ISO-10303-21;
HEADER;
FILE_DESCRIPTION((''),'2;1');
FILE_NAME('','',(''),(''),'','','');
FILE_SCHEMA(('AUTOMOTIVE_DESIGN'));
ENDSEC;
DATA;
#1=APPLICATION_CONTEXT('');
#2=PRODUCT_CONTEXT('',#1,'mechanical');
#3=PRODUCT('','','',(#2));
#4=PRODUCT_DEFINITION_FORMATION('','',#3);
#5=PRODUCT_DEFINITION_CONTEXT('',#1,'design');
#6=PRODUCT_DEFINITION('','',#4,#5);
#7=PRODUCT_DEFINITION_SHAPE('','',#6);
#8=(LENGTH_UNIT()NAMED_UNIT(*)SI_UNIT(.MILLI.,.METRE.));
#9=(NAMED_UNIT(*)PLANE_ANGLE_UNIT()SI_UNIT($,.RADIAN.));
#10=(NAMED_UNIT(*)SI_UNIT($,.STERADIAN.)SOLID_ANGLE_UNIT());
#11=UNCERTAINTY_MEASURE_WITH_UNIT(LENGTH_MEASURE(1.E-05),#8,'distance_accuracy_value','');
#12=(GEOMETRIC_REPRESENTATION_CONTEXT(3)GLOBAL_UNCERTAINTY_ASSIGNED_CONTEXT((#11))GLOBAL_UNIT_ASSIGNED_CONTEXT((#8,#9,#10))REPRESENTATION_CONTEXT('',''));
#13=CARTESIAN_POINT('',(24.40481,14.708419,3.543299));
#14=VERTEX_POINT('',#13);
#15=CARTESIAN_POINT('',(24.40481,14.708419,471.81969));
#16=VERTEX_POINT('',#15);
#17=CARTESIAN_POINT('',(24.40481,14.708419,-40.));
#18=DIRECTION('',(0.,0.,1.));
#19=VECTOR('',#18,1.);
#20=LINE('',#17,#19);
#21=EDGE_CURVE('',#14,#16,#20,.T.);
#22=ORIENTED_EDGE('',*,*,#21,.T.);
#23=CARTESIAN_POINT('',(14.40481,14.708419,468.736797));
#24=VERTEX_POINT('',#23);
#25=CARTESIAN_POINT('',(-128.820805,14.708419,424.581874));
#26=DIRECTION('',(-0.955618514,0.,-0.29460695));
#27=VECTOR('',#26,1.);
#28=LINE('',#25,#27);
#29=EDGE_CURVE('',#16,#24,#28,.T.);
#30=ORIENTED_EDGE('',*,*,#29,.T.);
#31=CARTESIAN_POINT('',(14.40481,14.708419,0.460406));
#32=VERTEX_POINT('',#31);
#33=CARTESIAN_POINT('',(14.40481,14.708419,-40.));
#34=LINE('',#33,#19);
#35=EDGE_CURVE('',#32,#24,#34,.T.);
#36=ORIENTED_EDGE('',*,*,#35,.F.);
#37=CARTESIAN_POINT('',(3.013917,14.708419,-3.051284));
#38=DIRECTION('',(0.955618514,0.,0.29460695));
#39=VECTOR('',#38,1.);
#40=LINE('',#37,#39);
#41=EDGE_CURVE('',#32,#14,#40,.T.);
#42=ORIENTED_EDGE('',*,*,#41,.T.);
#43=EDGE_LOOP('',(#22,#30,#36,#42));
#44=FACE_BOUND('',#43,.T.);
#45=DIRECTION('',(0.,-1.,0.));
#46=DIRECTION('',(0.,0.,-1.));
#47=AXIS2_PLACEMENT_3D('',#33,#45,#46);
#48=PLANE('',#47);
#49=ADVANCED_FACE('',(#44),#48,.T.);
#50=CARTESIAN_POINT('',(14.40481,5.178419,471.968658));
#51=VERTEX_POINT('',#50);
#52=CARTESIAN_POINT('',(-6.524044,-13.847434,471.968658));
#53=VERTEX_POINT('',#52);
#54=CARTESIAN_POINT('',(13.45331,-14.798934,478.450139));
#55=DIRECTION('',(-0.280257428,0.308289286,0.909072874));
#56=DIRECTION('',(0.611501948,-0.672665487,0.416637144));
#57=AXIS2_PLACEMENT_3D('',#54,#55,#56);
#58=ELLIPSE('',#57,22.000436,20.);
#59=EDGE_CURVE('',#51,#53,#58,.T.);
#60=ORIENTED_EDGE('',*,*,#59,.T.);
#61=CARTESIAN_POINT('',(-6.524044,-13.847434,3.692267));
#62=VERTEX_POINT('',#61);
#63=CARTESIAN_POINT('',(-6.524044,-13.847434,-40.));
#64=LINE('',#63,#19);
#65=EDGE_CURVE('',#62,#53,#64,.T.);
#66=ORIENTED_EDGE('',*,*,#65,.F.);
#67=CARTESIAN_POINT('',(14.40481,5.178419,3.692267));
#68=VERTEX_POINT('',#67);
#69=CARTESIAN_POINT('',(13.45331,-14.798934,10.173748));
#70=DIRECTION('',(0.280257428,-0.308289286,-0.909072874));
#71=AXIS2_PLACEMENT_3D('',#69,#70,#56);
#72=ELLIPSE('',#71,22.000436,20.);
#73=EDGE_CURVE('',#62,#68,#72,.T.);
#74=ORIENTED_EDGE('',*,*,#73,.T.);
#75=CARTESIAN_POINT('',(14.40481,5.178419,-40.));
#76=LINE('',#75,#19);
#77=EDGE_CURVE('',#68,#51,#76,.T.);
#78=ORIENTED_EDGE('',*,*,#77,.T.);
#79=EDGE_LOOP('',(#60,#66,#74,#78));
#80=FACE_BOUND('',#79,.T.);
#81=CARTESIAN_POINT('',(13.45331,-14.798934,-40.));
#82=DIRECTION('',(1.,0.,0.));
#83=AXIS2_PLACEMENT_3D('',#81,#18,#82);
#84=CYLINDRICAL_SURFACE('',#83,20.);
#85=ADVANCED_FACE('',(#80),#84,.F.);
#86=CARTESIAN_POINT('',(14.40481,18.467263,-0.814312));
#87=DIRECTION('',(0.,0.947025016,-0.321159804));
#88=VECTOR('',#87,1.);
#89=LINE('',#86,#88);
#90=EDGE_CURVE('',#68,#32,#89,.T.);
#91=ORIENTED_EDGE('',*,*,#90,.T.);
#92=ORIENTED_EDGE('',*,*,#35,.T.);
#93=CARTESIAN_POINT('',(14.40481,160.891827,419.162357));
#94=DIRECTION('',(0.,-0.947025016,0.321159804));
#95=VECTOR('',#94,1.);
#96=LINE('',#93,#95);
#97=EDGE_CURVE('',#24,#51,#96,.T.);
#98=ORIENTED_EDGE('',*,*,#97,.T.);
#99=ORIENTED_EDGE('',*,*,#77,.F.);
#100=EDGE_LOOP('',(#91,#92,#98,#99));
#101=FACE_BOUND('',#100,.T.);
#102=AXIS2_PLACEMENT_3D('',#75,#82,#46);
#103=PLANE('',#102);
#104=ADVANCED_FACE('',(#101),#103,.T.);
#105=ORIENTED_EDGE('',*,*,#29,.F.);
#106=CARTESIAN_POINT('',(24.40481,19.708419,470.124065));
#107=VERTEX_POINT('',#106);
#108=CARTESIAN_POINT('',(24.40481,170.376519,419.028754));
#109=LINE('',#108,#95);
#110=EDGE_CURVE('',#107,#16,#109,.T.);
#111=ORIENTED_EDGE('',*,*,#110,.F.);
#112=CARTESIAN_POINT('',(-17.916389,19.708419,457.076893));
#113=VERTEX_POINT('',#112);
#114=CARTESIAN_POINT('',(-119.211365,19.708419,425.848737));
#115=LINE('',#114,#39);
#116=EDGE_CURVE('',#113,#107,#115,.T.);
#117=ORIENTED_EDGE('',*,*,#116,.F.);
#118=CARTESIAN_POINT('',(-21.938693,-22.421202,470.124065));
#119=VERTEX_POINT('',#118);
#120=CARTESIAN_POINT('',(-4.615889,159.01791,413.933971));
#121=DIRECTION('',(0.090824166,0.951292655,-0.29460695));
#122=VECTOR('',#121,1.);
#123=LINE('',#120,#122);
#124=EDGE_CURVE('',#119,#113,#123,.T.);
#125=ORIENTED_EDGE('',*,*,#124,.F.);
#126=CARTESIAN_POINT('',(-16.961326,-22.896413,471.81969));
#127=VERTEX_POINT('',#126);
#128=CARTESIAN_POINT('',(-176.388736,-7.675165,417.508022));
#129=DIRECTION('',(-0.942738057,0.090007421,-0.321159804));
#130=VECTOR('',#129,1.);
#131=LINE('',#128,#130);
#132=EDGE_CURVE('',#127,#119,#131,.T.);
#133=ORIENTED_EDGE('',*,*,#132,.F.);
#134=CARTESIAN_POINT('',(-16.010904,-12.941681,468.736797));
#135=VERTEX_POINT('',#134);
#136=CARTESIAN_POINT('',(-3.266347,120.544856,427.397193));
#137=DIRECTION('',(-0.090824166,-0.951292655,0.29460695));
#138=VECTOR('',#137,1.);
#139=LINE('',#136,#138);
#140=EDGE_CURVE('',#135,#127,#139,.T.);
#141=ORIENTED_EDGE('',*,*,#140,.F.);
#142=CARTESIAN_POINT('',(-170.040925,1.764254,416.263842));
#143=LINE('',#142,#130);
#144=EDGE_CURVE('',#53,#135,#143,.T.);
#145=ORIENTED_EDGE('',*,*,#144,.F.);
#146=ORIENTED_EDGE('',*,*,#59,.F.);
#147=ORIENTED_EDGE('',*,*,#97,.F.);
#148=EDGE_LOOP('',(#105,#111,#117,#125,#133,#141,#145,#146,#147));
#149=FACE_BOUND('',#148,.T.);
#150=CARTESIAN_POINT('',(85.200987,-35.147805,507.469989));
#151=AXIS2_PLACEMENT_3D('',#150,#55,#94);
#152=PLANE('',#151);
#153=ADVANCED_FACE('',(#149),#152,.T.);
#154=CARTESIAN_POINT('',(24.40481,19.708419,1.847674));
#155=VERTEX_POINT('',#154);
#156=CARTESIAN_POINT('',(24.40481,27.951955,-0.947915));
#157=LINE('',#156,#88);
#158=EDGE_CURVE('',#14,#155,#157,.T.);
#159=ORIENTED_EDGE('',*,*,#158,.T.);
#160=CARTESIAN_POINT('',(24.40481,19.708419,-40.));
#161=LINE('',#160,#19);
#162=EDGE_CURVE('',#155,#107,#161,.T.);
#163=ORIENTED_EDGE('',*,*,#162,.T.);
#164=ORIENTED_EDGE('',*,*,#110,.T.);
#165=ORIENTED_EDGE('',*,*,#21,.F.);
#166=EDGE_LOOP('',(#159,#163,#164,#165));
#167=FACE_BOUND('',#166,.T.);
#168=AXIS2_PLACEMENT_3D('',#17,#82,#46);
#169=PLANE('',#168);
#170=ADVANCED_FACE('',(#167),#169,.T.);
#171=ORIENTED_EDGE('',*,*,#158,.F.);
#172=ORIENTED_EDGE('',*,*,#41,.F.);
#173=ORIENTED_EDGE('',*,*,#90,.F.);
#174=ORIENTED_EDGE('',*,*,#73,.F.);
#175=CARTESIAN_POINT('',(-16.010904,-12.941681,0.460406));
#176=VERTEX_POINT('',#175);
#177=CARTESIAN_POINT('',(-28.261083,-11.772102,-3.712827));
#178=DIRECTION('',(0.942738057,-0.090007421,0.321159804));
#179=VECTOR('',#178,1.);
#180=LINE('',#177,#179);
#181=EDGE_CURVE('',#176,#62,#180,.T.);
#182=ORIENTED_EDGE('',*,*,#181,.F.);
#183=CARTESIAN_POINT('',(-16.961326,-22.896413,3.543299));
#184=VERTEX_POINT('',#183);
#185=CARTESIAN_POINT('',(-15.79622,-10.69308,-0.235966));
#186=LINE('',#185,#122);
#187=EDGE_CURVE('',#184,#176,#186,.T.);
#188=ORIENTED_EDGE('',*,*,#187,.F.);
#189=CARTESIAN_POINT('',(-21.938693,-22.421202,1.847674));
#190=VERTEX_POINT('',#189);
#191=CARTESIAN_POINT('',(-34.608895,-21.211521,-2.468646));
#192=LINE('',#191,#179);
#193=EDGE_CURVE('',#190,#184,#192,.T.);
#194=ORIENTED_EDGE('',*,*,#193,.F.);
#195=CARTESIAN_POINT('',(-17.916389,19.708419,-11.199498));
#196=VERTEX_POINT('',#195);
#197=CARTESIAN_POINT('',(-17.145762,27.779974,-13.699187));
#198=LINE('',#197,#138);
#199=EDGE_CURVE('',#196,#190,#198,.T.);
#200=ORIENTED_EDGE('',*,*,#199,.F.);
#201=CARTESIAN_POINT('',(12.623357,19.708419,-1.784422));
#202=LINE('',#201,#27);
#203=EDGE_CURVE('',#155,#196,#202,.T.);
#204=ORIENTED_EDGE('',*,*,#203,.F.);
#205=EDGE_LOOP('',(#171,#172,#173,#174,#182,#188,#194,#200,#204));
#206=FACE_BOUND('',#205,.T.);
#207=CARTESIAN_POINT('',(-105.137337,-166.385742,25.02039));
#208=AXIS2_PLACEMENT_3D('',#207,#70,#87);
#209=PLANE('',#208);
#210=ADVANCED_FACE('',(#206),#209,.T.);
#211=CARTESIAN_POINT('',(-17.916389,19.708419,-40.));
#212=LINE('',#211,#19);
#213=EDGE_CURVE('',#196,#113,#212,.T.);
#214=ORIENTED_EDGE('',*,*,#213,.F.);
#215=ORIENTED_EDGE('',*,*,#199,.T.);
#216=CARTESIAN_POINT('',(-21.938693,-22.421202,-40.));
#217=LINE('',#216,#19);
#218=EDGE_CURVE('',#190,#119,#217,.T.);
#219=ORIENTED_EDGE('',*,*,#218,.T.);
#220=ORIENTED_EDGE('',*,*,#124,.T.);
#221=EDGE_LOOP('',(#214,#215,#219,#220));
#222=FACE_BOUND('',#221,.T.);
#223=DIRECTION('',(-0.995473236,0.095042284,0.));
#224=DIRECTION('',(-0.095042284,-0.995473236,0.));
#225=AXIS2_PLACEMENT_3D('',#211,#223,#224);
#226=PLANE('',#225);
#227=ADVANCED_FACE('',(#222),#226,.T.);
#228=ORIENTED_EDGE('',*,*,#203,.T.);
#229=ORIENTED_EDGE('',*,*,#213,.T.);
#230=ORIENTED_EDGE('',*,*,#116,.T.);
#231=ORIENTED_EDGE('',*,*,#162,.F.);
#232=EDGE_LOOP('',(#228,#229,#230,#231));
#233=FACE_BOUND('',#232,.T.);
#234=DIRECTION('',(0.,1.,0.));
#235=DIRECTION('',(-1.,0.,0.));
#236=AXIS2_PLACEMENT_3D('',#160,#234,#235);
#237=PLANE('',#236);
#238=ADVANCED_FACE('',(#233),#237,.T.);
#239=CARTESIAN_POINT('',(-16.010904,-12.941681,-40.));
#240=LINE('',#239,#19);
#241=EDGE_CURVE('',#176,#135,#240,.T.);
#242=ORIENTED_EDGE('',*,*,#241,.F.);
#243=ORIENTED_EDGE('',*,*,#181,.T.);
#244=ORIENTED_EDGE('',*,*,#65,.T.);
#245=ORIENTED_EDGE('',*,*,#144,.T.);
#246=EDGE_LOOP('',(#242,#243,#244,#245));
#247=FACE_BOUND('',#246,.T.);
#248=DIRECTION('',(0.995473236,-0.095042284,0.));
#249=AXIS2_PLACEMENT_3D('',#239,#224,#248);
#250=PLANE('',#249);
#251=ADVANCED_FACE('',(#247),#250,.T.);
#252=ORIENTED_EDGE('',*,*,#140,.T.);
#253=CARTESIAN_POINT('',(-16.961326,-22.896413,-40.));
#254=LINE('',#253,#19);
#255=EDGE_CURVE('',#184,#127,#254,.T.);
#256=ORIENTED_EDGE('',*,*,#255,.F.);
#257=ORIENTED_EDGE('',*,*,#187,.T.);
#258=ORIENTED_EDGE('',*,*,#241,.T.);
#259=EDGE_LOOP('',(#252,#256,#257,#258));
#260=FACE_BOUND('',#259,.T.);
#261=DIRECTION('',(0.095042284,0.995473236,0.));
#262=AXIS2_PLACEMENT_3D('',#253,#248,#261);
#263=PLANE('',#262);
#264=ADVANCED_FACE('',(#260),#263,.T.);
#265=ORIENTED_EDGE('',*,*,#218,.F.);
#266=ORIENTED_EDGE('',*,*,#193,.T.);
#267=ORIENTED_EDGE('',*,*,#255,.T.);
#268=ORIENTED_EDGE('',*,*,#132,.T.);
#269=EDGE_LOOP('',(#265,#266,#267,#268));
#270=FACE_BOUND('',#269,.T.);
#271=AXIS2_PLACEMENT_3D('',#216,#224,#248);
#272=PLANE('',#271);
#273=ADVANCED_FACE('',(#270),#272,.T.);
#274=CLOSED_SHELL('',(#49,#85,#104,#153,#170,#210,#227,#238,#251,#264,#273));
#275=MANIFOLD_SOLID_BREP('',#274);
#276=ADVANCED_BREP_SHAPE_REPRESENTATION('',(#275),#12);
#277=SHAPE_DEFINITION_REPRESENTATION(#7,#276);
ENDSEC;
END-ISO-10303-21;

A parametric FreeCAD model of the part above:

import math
import FreeCAD as App
import Part
import Sketcher

doc = App.newDocument("Part")
body = doc.addObject("PartDesign::Body", "Body")

sketch1 = body.newObject("Sketcher::SketchObject", "Sketch")
sketch1.AttachmentSupport = (doc.getObject("XY_Plane"), [""])
sketch1.MapMode = "FlatFace"
sketch1.addGeometry([
    Part.LineSegment(App.Vector(14, 5, 0), App.Vector(14, 15, 0)),
    Part.LineSegment(App.Vector(14, 15, 0), App.Vector(24, 15, 0)),
    Part.LineSegment(App.Vector(24, 15, 0), App.Vector(24, 20, 0)),
    Part.LineSegment(App.Vector(24, 20, 0), App.Vector(-18, 20, 0)),
    Part.LineSegment(App.Vector(-18, 20, 0), App.Vector(-22, -22, 0)),
    Part.LineSegment(App.Vector(-22, -22, 0), App.Vector(-17, -23, 0)),
    Part.LineSegment(App.Vector(-17, -23, 0), App.Vector(-16, -13, 0)),
    Part.LineSegment(App.Vector(-16, -13, 0), App.Vector(-7, -14, 0)),
    Part.ArcOfCircle(Part.Circle(App.Vector(13, -15, 0), App.Vector(0, 0, 1), 20), math.radians(87), math.radians(177)),
], False)
sketch1.addConstraint([
    Sketcher.Constraint("Coincident", 0, 2, 1, 1),
    Sketcher.Constraint("Coincident", 1, 2, 2, 1),
    Sketcher.Constraint("Coincident", 2, 2, 3, 1),
    Sketcher.Constraint("Coincident", 3, 2, 4, 1),
    Sketcher.Constraint("Coincident", 4, 2, 5, 1),
    Sketcher.Constraint("Coincident", 5, 2, 6, 1),
    Sketcher.Constraint("Coincident", 6, 2, 7, 1),
    Sketcher.Constraint("Coincident", 7, 2, 8, 2),
    Sketcher.Constraint("Coincident", 8, 1, 0, 1),
    Sketcher.Constraint("Vertical", 0),
    Sketcher.Constraint("Horizontal", 1),
    Sketcher.Constraint("Vertical", 2),
    Sketcher.Constraint("Horizontal", 3),
    Sketcher.Constraint("Perpendicular", 4, 5),
    Sketcher.Constraint("Perpendicular", 5, 6),
    Sketcher.Constraint("Perpendicular", 6, 7),
    Sketcher.Constraint("Radius", 8, 20.0),
    Sketcher.Constraint("DistanceX", 1, 1, 1, 2, 10.0),
    Sketcher.Constraint("DistanceY", 2, 1, 2, 2, 5.0),
    Sketcher.Constraint("Distance", 5, 5.0),
    Sketcher.Constraint("Distance", 6, 10.0),
    Sketcher.Constraint("DistanceY", 0, 1, 0, 2, 9.53),
    Sketcher.Constraint("Distance", 7, 9.53),
    Sketcher.Constraint("DistanceX", 3, 2, 3, 1, 42.321199),
    Sketcher.Constraint("Distance", 4, 42.321199),
    Sketcher.Constraint("DistanceX", 8, 3, 0, 2, 0.9515),
    Sketcher.Constraint("DistanceX", -1, 1, 8, 3, 13.45331),
    Sketcher.Constraint("DistanceY", -1, 1, 0, 2, 14.708419),
])
pad1 = body.newObject("PartDesign::Pad", "Pad")
pad1.Profile = sketch1
pad1.Type = "TwoLengths"
pad1.Length = 514
pad1.Length2 = 40

sketch2 = body.newObject("Sketcher::SketchObject", "Sketch001")
sketch2.Placement = App.Placement(App.Vector(-738.201874, 812.038169, 3415.5611), App.Rotation(App.Vector(-0.955618514, 0, -0.29460695), App.Vector(-0.280257428, 0.308289286, 0.909072873), App.Vector(0.090824166, 0.951292655, -0.29460695), "ZXY"))
sketch2.addGeometry([
    Part.LineSegment(App.Vector(70, -3136, 0), App.Vector(247, -3136, 0)),
    Part.LineSegment(App.Vector(247, -3136, 0), App.Vector(168, -3034, 0)),
    Part.LineSegment(App.Vector(168, -3034, 0), App.Vector(70, -3136, 0)),
    Part.LineSegment(App.Vector(236, -3561, 0), App.Vector(314, -3654, 0)),
    Part.LineSegment(App.Vector(314, -3654, 0), App.Vector(394, -3561, 0)),
    Part.LineSegment(App.Vector(394, -3561, 0), App.Vector(236, -3561, 0)),
], False)
sketch2.addConstraint([
    Sketcher.Constraint("Coincident", 0, 2, 1, 1),
    Sketcher.Constraint("Coincident", 1, 2, 2, 1),
    Sketcher.Constraint("Coincident", 2, 2, 0, 1),
    Sketcher.Constraint("Coincident", 3, 2, 4, 1),
    Sketcher.Constraint("Coincident", 4, 2, 5, 1),
    Sketcher.Constraint("Coincident", 5, 2, 3, 1),
    Sketcher.Constraint("Horizontal", 0),
    Sketcher.Constraint("Horizontal", 5),
    Sketcher.Constraint("Distance", 3, 121.144699),
    Sketcher.Constraint("DistanceX", 0, 1, 0, 2, 176.939291),
    Sketcher.Constraint("DistanceX", 5, 2, 5, 1, 157.64647),
    Sketcher.Constraint("DistanceX", -1, 1, 3, 2, 313.780261),
    Sketcher.Constraint("DistanceY", 3, 2, -1, 1, 3654.40389),
    Sketcher.Constraint("DistanceY", 4, 2, -1, 1, 3561.307232),
    Sketcher.Constraint("DistanceX", 1, 2, 0, 2, 79.21877),
    Sketcher.Constraint("DistanceY", 3, 2, 0, 2, 518.794022),
    Sketcher.Constraint("DistanceX", 0, 2, 4, 2, 147.084539),
    Sketcher.Constraint("Distance", 1, 128.499574),
])
pocket1 = body.newObject("PartDesign::Pocket", "Pocket")
pocket1.Profile = sketch2
pocket1.Type = "ThroughAll"
pocket1.Midplane = True

doc.recompute()
